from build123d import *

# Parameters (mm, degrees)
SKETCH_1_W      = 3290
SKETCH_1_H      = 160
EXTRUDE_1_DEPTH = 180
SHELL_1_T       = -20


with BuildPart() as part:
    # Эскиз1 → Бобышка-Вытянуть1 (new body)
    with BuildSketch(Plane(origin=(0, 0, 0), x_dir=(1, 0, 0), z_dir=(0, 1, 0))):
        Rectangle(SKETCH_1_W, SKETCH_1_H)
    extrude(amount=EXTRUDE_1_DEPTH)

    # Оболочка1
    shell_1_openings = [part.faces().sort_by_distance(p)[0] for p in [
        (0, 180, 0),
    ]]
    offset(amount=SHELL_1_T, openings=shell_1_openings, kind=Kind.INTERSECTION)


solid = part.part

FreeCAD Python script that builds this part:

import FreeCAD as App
import Part
import Sketcher
from FreeCAD import Vector


def faces_at(feature, points):
    """Names of the faces that lie closest to the given points."""
    faces = feature.Shape.Faces
    near = lambda p: min(range(len(faces)), key=lambda i: faces[i].distToShape(Part.Vertex(*p))[0])
    return sorted({f"Face{near(p) + 1}" for p in points})


def add_polygon(sketch, points):
    """Adds a closed chain of lines whose ends are joined by coincident constraints."""
    first, n = sketch.GeometryCount, len(points)
    for a, b in zip(points, points[1:] + points[:1]):
        sketch.addGeometry(Part.LineSegment(App.Vector(*a, 0), App.Vector(*b, 0)), False)
    for i in range(n):
        sketch.addConstraint(Sketcher.Constraint("Coincident", first + i, 2, first + (i + 1) % n, 1))

doc = App.newDocument("Part")
body = doc.addObject("PartDesign::Body", "Body")

# Sketch on XZ plane
sketch1 = body.newObject("Sketcher::SketchObject", "Sketch")
sketch1.AttachmentSupport = (doc.getObject("XZ_Plane"), [""])
sketch1.MapMode = "FlatFace"
add_polygon(sketch1, [(-1645, -80), (-1645, 80), (1645, 80), (1645, -80)])  # lines 0-3
sketch1.addConstraint([
    Sketcher.Constraint("Vertical", 0),
    Sketcher.Constraint("Horizontal", 1),
    Sketcher.Constraint("Vertical", 2),
    Sketcher.Constraint("Horizontal", 3),
    Sketcher.Constraint("Symmetric", 0, 2, 2, 2, -1, 1),
    Sketcher.Constraint("DistanceX", 1, 1, 1, 2, 3290.0),
    Sketcher.Constraint("DistanceY", 0, 1, 0, 2, 160.0),
])
pad1 = body.newObject("PartDesign::Pad", "Pad")
pad1.Profile = sketch1
pad1.Length = 180
pad1.Reversed = True
doc.recompute()

thickness = body.newObject("PartDesign::Thickness", "Thickness")
thickness.Base = (pad1, faces_at(pad1, [(0, 180, 0)]))
thickness.Value = 20
thickness.Reversed = True
thickness.Join = "Intersection"

doc.recompute()
